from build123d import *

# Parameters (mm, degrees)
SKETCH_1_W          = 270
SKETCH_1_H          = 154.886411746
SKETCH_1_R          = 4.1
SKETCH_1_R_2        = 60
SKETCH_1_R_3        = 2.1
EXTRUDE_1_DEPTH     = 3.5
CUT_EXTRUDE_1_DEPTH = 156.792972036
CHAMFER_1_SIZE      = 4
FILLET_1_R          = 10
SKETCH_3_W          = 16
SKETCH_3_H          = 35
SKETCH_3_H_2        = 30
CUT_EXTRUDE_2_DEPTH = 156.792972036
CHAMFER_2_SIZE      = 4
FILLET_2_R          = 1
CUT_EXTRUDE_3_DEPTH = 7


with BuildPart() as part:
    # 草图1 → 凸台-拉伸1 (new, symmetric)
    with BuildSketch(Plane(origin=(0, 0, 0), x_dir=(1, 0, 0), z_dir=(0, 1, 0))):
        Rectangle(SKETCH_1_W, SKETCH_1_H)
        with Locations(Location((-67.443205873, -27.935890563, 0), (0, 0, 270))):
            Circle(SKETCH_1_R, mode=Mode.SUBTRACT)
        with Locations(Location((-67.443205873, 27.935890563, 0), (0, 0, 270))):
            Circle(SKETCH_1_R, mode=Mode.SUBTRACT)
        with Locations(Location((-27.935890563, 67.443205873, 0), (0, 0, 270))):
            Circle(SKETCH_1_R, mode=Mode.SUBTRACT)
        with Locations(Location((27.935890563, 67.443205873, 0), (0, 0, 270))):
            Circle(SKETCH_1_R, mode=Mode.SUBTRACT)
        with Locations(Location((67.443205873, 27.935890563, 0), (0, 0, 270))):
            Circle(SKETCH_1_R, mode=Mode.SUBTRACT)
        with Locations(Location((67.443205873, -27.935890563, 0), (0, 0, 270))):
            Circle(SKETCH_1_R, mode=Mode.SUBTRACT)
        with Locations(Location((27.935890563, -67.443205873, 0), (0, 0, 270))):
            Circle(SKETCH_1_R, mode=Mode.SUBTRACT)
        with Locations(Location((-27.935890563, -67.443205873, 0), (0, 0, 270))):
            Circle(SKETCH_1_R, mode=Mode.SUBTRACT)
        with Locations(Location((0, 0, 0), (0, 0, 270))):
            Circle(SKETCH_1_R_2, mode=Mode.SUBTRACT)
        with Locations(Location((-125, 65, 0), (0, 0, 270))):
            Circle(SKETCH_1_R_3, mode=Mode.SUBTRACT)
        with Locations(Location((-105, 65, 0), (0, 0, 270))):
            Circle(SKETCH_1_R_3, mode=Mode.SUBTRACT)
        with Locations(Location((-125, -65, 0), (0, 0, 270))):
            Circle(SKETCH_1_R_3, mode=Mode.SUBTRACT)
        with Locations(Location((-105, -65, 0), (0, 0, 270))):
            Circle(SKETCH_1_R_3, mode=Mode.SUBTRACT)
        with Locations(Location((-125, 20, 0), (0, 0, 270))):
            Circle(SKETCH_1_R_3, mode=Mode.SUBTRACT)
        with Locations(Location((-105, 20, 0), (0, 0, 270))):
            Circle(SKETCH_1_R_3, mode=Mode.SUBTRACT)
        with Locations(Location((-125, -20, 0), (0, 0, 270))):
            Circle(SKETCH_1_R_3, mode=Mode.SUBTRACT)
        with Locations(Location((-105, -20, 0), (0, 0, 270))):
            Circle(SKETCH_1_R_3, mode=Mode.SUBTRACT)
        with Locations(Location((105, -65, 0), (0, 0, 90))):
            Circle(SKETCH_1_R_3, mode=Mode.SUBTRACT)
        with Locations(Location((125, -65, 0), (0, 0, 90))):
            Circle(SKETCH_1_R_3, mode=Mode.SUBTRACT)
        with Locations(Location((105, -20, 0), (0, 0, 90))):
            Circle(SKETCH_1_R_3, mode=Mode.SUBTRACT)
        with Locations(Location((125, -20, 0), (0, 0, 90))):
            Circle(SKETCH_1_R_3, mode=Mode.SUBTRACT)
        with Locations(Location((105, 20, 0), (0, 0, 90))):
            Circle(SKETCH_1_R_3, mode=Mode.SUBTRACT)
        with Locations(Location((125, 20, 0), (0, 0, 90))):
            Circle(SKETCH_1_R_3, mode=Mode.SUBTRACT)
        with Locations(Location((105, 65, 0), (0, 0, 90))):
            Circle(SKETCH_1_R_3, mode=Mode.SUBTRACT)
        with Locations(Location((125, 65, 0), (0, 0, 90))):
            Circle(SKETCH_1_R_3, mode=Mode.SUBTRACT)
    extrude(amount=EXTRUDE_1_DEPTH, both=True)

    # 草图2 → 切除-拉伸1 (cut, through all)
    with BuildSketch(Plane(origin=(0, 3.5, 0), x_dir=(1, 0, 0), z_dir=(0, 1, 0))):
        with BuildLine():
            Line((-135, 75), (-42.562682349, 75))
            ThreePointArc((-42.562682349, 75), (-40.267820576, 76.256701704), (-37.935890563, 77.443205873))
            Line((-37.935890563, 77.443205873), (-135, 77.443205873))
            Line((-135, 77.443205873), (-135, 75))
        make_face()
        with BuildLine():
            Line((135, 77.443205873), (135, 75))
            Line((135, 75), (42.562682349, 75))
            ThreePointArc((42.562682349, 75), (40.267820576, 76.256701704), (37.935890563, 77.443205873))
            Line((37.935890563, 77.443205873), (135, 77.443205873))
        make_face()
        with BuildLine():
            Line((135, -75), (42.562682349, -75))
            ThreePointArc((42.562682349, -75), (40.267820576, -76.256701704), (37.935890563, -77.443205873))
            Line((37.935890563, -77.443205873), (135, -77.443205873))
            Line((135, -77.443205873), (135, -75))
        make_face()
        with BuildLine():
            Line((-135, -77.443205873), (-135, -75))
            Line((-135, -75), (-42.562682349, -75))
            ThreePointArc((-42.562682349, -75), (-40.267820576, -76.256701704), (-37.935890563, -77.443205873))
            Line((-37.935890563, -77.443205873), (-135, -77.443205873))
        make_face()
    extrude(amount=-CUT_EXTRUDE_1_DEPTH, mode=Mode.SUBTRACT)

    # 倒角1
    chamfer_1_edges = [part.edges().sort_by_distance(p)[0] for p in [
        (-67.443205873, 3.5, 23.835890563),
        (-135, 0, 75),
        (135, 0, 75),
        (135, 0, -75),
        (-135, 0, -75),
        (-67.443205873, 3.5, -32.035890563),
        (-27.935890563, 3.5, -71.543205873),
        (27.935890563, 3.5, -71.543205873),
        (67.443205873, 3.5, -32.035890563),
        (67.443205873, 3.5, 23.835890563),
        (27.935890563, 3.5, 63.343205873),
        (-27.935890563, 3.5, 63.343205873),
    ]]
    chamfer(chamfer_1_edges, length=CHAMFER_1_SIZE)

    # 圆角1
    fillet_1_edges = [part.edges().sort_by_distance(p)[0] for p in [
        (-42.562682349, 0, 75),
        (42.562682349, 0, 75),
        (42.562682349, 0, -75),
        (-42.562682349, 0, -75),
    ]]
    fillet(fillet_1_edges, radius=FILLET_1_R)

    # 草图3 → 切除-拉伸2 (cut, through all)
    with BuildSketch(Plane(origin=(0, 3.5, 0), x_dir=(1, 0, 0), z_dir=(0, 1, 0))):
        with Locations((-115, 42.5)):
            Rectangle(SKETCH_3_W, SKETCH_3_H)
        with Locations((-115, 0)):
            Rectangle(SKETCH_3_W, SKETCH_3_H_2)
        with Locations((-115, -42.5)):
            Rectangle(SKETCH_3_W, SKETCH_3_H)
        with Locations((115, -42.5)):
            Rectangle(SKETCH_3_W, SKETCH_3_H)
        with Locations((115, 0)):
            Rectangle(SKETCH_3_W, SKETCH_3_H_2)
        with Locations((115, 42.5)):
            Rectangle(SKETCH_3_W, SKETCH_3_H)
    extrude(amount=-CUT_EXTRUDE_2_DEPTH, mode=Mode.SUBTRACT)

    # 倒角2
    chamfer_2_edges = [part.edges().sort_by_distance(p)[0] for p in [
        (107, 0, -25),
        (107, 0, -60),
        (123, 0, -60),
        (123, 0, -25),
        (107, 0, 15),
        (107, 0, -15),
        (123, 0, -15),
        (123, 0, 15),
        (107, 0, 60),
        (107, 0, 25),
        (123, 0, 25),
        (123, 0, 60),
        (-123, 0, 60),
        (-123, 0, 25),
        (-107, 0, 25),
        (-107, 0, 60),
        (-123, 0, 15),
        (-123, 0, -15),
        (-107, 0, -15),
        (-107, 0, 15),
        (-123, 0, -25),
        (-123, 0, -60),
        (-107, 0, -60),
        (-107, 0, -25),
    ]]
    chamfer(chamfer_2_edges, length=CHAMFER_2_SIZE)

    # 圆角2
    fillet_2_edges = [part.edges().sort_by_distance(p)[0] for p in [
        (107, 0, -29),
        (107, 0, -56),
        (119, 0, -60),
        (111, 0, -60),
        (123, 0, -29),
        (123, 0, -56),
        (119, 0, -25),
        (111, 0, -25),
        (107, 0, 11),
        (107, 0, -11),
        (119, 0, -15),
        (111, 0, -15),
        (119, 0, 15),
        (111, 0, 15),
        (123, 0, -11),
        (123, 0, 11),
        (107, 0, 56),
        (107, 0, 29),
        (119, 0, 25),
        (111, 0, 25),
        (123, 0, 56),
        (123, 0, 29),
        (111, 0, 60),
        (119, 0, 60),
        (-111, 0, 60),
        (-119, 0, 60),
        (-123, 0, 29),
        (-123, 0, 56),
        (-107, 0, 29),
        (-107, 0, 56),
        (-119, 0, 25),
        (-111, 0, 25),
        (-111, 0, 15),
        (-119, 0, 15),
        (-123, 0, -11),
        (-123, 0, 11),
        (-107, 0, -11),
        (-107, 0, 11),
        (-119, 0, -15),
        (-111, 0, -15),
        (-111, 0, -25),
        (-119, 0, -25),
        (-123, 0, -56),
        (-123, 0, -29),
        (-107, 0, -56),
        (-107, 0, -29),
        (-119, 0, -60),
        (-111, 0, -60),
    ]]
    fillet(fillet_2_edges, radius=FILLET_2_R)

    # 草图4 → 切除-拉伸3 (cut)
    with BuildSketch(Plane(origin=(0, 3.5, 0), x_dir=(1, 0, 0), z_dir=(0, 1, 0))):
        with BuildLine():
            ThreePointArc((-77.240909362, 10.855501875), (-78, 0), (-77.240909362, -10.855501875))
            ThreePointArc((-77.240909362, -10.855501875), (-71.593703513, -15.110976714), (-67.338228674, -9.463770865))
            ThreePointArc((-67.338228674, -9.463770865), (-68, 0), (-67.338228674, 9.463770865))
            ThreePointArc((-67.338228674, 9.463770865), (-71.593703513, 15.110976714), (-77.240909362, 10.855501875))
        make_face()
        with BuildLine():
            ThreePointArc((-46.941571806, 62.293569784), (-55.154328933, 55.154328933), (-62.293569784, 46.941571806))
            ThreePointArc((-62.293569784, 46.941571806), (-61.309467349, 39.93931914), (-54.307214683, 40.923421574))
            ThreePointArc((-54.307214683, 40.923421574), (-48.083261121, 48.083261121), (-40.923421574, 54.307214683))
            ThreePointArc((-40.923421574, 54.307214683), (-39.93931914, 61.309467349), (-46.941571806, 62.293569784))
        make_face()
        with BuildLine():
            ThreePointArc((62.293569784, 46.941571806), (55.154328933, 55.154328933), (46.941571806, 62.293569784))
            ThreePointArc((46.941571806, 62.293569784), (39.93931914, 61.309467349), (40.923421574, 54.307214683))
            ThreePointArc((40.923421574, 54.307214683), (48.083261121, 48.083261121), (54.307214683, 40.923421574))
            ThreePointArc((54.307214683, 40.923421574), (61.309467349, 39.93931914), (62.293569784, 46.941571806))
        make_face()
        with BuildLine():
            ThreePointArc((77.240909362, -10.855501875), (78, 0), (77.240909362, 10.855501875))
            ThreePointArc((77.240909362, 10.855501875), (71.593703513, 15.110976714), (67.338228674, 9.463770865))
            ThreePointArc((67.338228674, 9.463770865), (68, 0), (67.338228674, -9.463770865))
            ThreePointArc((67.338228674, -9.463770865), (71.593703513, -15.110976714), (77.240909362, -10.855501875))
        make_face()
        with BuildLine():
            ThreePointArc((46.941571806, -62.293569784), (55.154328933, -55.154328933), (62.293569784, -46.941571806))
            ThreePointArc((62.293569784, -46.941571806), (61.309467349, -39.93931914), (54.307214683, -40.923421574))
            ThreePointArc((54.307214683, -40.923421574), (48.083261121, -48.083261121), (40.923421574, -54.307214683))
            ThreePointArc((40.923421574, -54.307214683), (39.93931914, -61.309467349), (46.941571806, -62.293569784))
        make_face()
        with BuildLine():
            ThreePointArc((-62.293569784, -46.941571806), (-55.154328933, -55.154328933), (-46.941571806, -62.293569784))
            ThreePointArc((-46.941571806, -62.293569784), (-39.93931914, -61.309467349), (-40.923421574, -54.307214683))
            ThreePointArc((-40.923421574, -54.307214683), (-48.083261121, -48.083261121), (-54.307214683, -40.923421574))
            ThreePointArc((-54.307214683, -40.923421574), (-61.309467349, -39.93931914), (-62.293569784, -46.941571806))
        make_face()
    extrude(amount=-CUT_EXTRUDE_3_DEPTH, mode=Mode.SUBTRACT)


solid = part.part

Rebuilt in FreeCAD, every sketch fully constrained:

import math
import FreeCAD as App
import Part
import Sketcher
from FreeCAD import Vector
Q = App.Units.Quantity


def edges_at(feature, points):
    """Names of the edges that pass closest to the given points."""
    edges = feature.Shape.Edges
    near = lambda p: min(range(len(edges)), key=lambda i: edges[i].distToShape(Part.Vertex(*p))[0])
    return sorted({f"Edge{near(p) + 1}" for p in points})


def add_polygon(sketch, points):
    """Adds a closed chain of lines whose ends are joined by coincident constraints."""
    first, n = sketch.GeometryCount, len(points)
    for a, b in zip(points, points[1:] + points[:1]):
        sketch.addGeometry(Part.LineSegment(App.Vector(*a, 0), App.Vector(*b, 0)), False)
    for i in range(n):
        sketch.addConstraint(Sketcher.Constraint("Coincident", first + i, 2, first + (i + 1) % n, 1))

doc = App.newDocument("Part")
body = doc.addObject("PartDesign::Body", "Body")

# Sketch on XZ plane
sketch1 = doc.addObject("Sketcher::SketchObject", "Sketch")
body.addObject(sketch1)
sketch1.AttachmentSupport = (doc.XZ_Plane, [""])
sketch1.MapMode = "FlatFace"
add_polygon(sketch1, [(-135, -77.443206), (-135, 77.443206), (135, 77.443206), (135, -77.443206)])  # lines 0-3
sketch1.addGeometry(Part.Circle(Vector(-125, 65, 0), Vector(0, 0, 1), 2.1), False)  # 4
sketch1.addGeometry(Part.Circle(Vector(-105, 65, 0), Vector(0, 0, 1), 2.1), False)  # 5
sketch1.addGeometry(Part.Circle(Vector(-27.935891, 67.443206, 0), Vector(0, 0, 1), 4.1), False)  # 6
sketch1.addGeometry(Part.Circle(Vector(-125, 20, 0), Vector(0, 0, 1), 2.1), False)  # 7
sketch1.addGeometry(Part.Circle(Vector(-105, 20, 0), Vector(0, 0, 1), 2.1), False)  # 8
sketch1.addGeometry(Part.Circle(Vector(-67.443206, 27.935891, 0), Vector(0, 0, 1), 4.1), False)  # 9
sketch1.addGeometry(Part.Circle(Vector(27.935891, 67.443206, 0), Vector(0, 0, 1), 4.1), False)  # 10
sketch1.addGeometry(Part.Circle(Vector(105, 65, 0), Vector(0, 0, 1), 2.1), False)  # 11
sketch1.addGeometry(Part.Circle(Vector(125, 65, 0), Vector(0, 0, 1), 2.1), False)  # 12
sketch1.addGeometry(Part.Circle(Vector(0, 0, 0), Vector(0, 0, 1), 60), False)  # 13
sketch1.addGeometry(Part.Circle(Vector(67.443206, 27.935891, 0), Vector(0, 0, 1), 4.1), False)  # 14
sketch1.addGeometry(Part.Circle(Vector(105, 20, 0), Vector(0, 0, 1), 2.1), False)  # 15
sketch1.addGeometry(Part.Circle(Vector(125, 20, 0), Vector(0, 0, 1), 2.1), False)  # 16
sketch1.addGeometry(Part.Circle(Vector(-125, -20, 0), Vector(0, 0, 1), 2.1), False)  # 17
sketch1.addGeometry(Part.Circle(Vector(-105, -20, 0), Vector(0, 0, 1), 2.1), False)  # 18
sketch1.addGeometry(Part.Circle(Vector(-67.443206, -27.935891, 0), Vector(0, 0, 1), 4.1), False)  # 19
sketch1.addGeometry(Part.Circle(Vector(-125, -65, 0), Vector(0, 0, 1), 2.1), False)  # 20
sketch1.addGeometry(Part.Circle(Vector(-105, -65, 0), Vector(0, 0, 1), 2.1), False)  # 21
sketch1.addGeometry(Part.Circle(Vector(-27.935891, -67.443206, 0), Vector(0, 0, 1), 4.1), False)  # 22
sketch1.addGeometry(Part.Circle(Vector(67.443206, -27.935891, 0), Vector(0, 0, 1), 4.1), False)  # 23
sketch1.addGeometry(Part.Circle(Vector(105, -20, 0), Vector(0, 0, 1), 2.1), False)  # 24
sketch1.addGeometry(Part.Circle(Vector(125, -20, 0), Vector(0, 0, 1), 2.1), False)  # 25
sketch1.addGeometry(Part.Circle(Vector(27.935891, -67.443206, 0), Vector(0, 0, 1), 4.1), False)  # 26
sketch1.addGeometry(Part.Circle(Vector(105, -65, 0), Vector(0, 0, 1), 2.1), False)  # 27
sketch1.addGeometry(Part.Circle(Vector(125, -65, 0), Vector(0, 0, 1), 2.1), False)  # 28
sketch1.addConstraint(Sketcher.Constraint("Vertical", 0))
sketch1.addConstraint(Sketcher.Constraint("Horizontal", 1))
sketch1.addConstraint(Sketcher.Constraint("Vertical", 2))
sketch1.addConstraint(Sketcher.Constraint("Horizontal", 3))
sketch1.addConstraint(Sketcher.Constraint("Coincident", 13, 3, -1, 1))
sketch1.addConstraint(Sketcher.Constraint("Equal", 4, 5))
sketch1.addConstraint(Sketcher.Constraint("Equal", 5, 7))
sketch1.addConstraint(Sketcher.Constraint("Equal", 7, 8))
sketch1.addConstraint(Sketcher.Constraint("Equal", 6, 9))
sketch1.addConstraint(Sketcher.Constraint("Equal", 9, 10))
sketch1.addConstraint(Sketcher.Constraint("Equal", 8, 11))
sketch1.addConstraint(Sketcher.Constraint("Equal", 11, 12))
sketch1.addConstraint(Sketcher.Constraint("Equal", 10, 14))
sketch1.addConstraint(Sketcher.Constraint("Equal", 12, 15))
sketch1.addConstraint(Sketcher.Constraint("Equal", 15, 16))
sketch1.addConstraint(Sketcher.Constraint("Equal", 16, 17))
sketch1.addConstraint(Sketcher.Constraint("Equal", 17, 18))
sketch1.addConstraint(Sketcher.Constraint("Equal", 14, 19))
sketch1.addConstraint(Sketcher.Constraint("Equal", 18, 20))
sketch1.addConstraint(Sketcher.Constraint("Equal", 20, 21))
sketch1.addConstraint(Sketcher.Constraint("Equal", 19, 22))
sketch1.addConstraint(Sketcher.Constraint("Equal", 22, 23))
sketch1.addConstraint(Sketcher.Constraint("Equal", 21, 24))
sketch1.addConstraint(Sketcher.Constraint("Equal", 24, 25))
sketch1.addConstraint(Sketcher.Constraint("Equal", 23, 26))
sketch1.addConstraint(Sketcher.Constraint("Equal", 25, 27))
sketch1.addConstraint(Sketcher.Constraint("Equal", 27, 28))
sketch1.addConstraint(Sketcher.Constraint("Symmetric", 16, 3, 17, 3, -1, 1))
sketch1.addConstraint(Sketcher.Constraint("Symmetric", 15, 3, 18, 3, -1, 1))
sketch1.addConstraint(Sketcher.Constraint("Symmetric", 14, 3, 19, 3, -1, 1))
sketch1.addConstraint(Sketcher.Constraint("Symmetric", 12, 3, 20, 3, -1, 1))
sketch1.addConstraint(Sketcher.Constraint("Symmetric", 11, 3, 21, 3, -1, 1))
sketch1.addConstraint(Sketcher.Constraint("Symmetric", 10, 3, 22, 3, -1, 1))
sketch1.addConstraint(Sketcher.Constraint("Symmetric", 9, 3, 23, 3, -1, 1))
sketch1.addConstraint(Sketcher.Constraint("Symmetric", 8, 3, 24, 3, -1, 1))
sketch1.addConstraint(Sketcher.Constraint("Symmetric", 7, 3, 25, 3, -1, 1))
sketch1.addConstraint(Sketcher.Constraint("Symmetric", 6, 3, 26, 3, -1, 1))
sketch1.addConstraint(Sketcher.Constraint("Symmetric", 5, 3, 27, 3, -1, 1))
sketch1.addConstraint(Sketcher.Constraint("Symmetric", 4, 3, 28, 3, -1, 1))
sketch1.addConstraint(Sketcher.Constraint("Symmetric", 0, 2, 2, 2, -1, 1))
sketch1.addConstraint(Sketcher.Constraint("Symmetric", 6, 3, 10, 3, -2))
sketch1.addConstraint(Sketcher.Constraint("Symmetric", 5, 3, 11, 3, -2))
sketch1.addConstraint(Sketcher.Constraint("Symmetric", 4, 3, 12, 3, -2))
sketch1.addConstraint(Sketcher.Constraint("Symmetric", 9, 3, 14, 3, -2))
sketch1.addConstraint(Sketcher.Constraint("Symmetric", 8, 3, 15, 3, -2))
sketch1.addConstraint(Sketcher.Constraint("Symmetric", 7, 3, 16, 3, -2))
sketch1.addConstraint(Sketcher.Constraint("Horizontal", 4, 3, 5, 3))
sketch1.addConstraint(Sketcher.Constraint("Horizontal", 7, 3, 8, 3))
sketch1.addConstraint(Sketcher.Constraint("Vertical", 4, 3, 7, 3))
sketch1.addConstraint(Sketcher.Constraint("Vertical", 5, 3, 8, 3))
sketch1.addConstraint(Sketcher.Constraint("Diameter", 13, Q("120 mm")))
sketch1.addConstraint(Sketcher.Constraint("Diameter", 4, Q("4.2 mm")))
sketch1.addConstraint(Sketcher.Constraint("Diameter", 6, Q("8.2 mm")))
sketch1.addConstraint(Sketcher.Constraint("DistanceX", 1, 1, 1, 2, Q("270 mm")))
sketch1.addConstraint(Sketcher.Constraint("DistanceX", 4, 3, -1, 1, Q("125 mm")))
sketch1.addConstraint(Sketcher.Constraint("DistanceY", -1, 1, 4, 3, Q("65 mm")))
sketch1.addConstraint(Sketcher.Constraint("DistanceX", 5, 3, -1, 1, Q("105 mm")))
sketch1.addConstraint(Sketcher.Constraint("DistanceY", -1, 1, 7, 3, Q("20 mm")))
sketch1.addConstraint(Sketcher.Constraint("DistanceY", 0, 1, 0, 2, Q("154.886412 mm")))
sketch1.addConstraint(Sketcher.Constraint("DistanceX", 6, 3, -1, 1, Q("27.935891 mm")))
sketch1.addConstraint(Sketcher.Constraint("DistanceY", -1, 1, 9, 3, Q("27.935891 mm")))
sketch1.addConstraint(Sketcher.Constraint("DistanceY", -1, 1, 6, 3, Q("67.443206 mm")))
sketch1.addConstraint(Sketcher.Constraint("DistanceX", 9, 3, -1, 1, Q("67.443206 mm")))
pad1 = doc.addObject("PartDesign::Pad", "Pad")
body.addObject(pad1)
pad1.Profile = sketch1
pad1.Length = 7
pad1.Midplane = True

# Sketch on XZ plane
sketch2 = doc.addObject("Sketcher::SketchObject", "Sketch001")
body.addObject(sketch2)
sketch2.AttachmentSupport = (doc.XZ_Plane, [""])
sketch2.MapMode = "FlatFace"
sketch2.AttachmentOffset = App.Placement(Vector(0, 0, -3.5), App.Rotation())
sketch2.addGeometry(Part.LineSegment(Vector(-135, -75, 0), Vector(-42.562682, -75, 0)), False)
sketch2.addGeometry(Part.ArcOfCircle(Part.Circle(Vector(0, 0, 0), Vector(0, 0, 1), 86.235619), math.radians(-119.575016), math.radians(-116.098124)), False)
sketch2.addGeometry(Part.LineSegment(Vector(-37.935891, -77.443206, 0), Vector(-135, -77.443206, 0)), False)
sketch2.addGeometry(Part.LineSegment(Vector(-135, -77.443206, 0), Vector(-135, -75, 0)), False)
sketch2.addGeometry(Part.LineSegment(Vector(135, -75, 0), Vector(135, -77.443206, 0)), False)
sketch2.addGeometry(Part.LineSegment(Vector(135, -77.443206, 0), Vector(37.935891, -77.443206, 0)), False)
sketch2.addGeometry(Part.ArcOfCircle(Part.Circle(Vector(0, 0, 0), Vector(0, 0, 1), 86.235619), math.radians(-63.901876), math.radians(-60.424984)), False)
sketch2.addGeometry(Part.LineSegment(Vector(42.562682, -75, 0), Vector(135, -75, 0)), False)
sketch2.addGeometry(Part.LineSegment(Vector(135, 75, 0), Vector(42.562682, 75, 0)), False)
sketch2.addGeometry(Part.ArcOfCircle(Part.Circle(Vector(0, 0, 0), Vector(0, 0, 1), 86.235619), math.radians(60.424984), math.radians(63.901876)), False)
sketch2.addGeometry(Part.LineSegment(Vector(37.935891, 77.443206, 0), Vector(135, 77.443206, 0)), False)
sketch2.addGeometry(Part.LineSegment(Vector(135, 77.443206, 0), Vector(135, 75, 0)), False)
sketch2.addGeometry(Part.LineSegment(Vector(-135, 75, 0), Vector(-135, 77.443206, 0)), False)
sketch2.addGeometry(Part.LineSegment(Vector(-135, 77.443206, 0), Vector(-37.935891, 77.443206, 0)), False)
sketch2.addGeometry(Part.ArcOfCircle(Part.Circle(Vector(0, 0, 0), Vector(0, 0, 1), 86.235619), math.radians(116.098124), math.radians(119.575016)), False)
sketch2.addGeometry(Part.LineSegment(Vector(-42.562682, 75, 0), Vector(-135, 75, 0)), False)
sketch2.addConstraint(Sketcher.Constraint("Coincident", 0, 2, 1, 1))
sketch2.addConstraint(Sketcher.Constraint("Coincident", 1, 2, 2, 1))
sketch2.addConstraint(Sketcher.Constraint("Coincident", 2, 2, 3, 1))
sketch2.addConstraint(Sketcher.Constraint("Coincident", 3, 2, 0, 1))
sketch2.addConstraint(Sketcher.Constraint("Coincident", 4, 2, 5, 1))
sketch2.addConstraint(Sketcher.Constraint("Coincident", 5, 2, 6, 1))
sketch2.addConstraint(Sketcher.Constraint("Coincident", 6, 2, 7, 1))
sketch2.addConstraint(Sketcher.Constraint("Coincident", 7, 2, 4, 1))
sketch2.addConstraint(Sketcher.Constraint("Coincident", 8, 2, 9, 1))
sketch2.addConstraint(Sketcher.Constraint("Coincident", 9, 2, 10, 1))
sketch2.addConstraint(Sketcher.Constraint("Coincident", 10, 2, 11, 1))
sketch2.addConstraint(Sketcher.Constraint("Coincident", 11, 2, 8, 1))
sketch2.addConstraint(Sketcher.Constraint("Coincident", 12, 2, 13, 1))
sketch2.addConstraint(Sketcher.Constraint("Coincident", 13, 2, 14, 1))
sketch2.addConstraint(Sketcher.Constraint("Coincident", 14, 2, 15, 1))
sketch2.addConstraint(Sketcher.Constraint("Coincident", 15, 2, 12, 1))
sketch2.addConstraint(Sketcher.Constraint("Horizontal", 0))
sketch2.addConstraint(Sketcher.Constraint("Horizontal", 2))
sketch2.addConstraint(Sketcher.Constraint("Vertical", 3))
sketch2.addConstraint(Sketcher.Constraint("Vertical", 4))
sketch2.addConstraint(Sketcher.Constraint("Horizontal", 5))
sketch2.addConstraint(Sketcher.Constraint("Horizontal", 7))
sketch2.addConstraint(Sketcher.Constraint("Horizontal", 8))
sketch2.addConstraint(Sketcher.Constraint("Horizontal", 10))
sketch2.addConstraint(Sketcher.Constraint("Vertical", 11))
sketch2.addConstraint(Sketcher.Constraint("Vertical", 12))
sketch2.addConstraint(Sketcher.Constraint("Horizontal", 13))
sketch2.addConstraint(Sketcher.Constraint("Horizontal", 15))
sketch2.addConstraint(Sketcher.Constraint("Coincident", 1, 3, -1, 1))
sketch2.addConstraint(Sketcher.Constraint("Coincident", 6, 3, -1, 1))
sketch2.addConstraint(Sketcher.Constraint("Coincident", 9, 3, -1, 1))
sketch2.addConstraint(Sketcher.Constraint("Coincident", 14, 3, -1, 1))
sketch2.addConstraint(Sketcher.Constraint("Equal", 1, 6))
sketch2.addConstraint(Sketcher.Constraint("Equal", 6, 9))
sketch2.addConstraint(Sketcher.Constraint("Equal", 9, 14))
sketch2.addConstraint(Sketcher.Constraint("Symmetric", 2, 2, 10, 2, -1, 1))
sketch2.addConstraint(Sketcher.Constraint("Symmetric", 4, 2, 12, 2, -1, 1))
sketch2.addConstraint(Sketcher.Constraint("Symmetric", 2, 2, 4, 2, -2))
sketch2.addConstraint(Sketcher.Constraint("Horizontal", 3, 2, 6, 2))
sketch2.addConstraint(Sketcher.Constraint("Horizontal", 11, 2, 14, 2))
sketch2.addConstraint(Sketcher.Constraint("Vertical", 6, 2, 8, 2))
sketch2.addConstraint(Sketcher.Constraint("DistanceY", 0, 2, -1, 1, Q("75 mm")))
sketch2.addConstraint(Sketcher.Constraint("DistanceX", 2, 2, -1, 1, Q("135 mm")))
sketch2.addConstraint(Sketcher.Constraint("Radius", 1, Q("86.235619 mm")))
sketch2.addConstraint(Sketcher.Constraint("DistanceX", 2, 2, 2, 1, Q("97.064109 mm")))
pocket1 = doc.addObject("PartDesign::Pocket", "Pocket")
body.addObject(pocket1)
pocket1.Profile = sketch2
pocket1.Type = "ThroughAll"
pocket1.Reversed = True
doc.recompute()

chamfer = doc.addObject("PartDesign::Chamfer", "Chamfer")
body.addObject(chamfer)
chamfer.Base = (pocket1, edges_at(pocket1, [
    (-67.443, 3.5, 23.836),
    (-135, 0, 75),
    (135, 0, 75),
    (135, 0, -75),
    (-135, 0, -75),
    (-67.443, 3.5, -32.036),
    (-27.936, 3.5, -71.543),
    (27.936, 3.5, -71.543),
    (67.443, 3.5, -32.036),
    (67.443, 3.5, 23.836),
    (27.936, 3.5, 63.343),
    (-27.936, 3.5, 63.343),
]))
chamfer.Size = 4
doc.recompute()

fillet = doc.addObject("PartDesign::Fillet", "Fillet")
body.addObject(fillet)
fillet.Base = (chamfer, edges_at(chamfer, [
    (-42.563, 0, 75),
    (42.563, 0, 75),
    (42.563, 0, -75),
    (-42.563, 0, -75),
]))
fillet.Radius = 10

# Sketch on XZ plane
sketch3 = doc.addObject("Sketcher::SketchObject", "Sketch002")
body.addObject(sketch3)
sketch3.AttachmentSupport = (doc.XZ_Plane, [""])
sketch3.MapMode = "FlatFace"
sketch3.AttachmentOffset = App.Placement(Vector(0, 0, -3.5), App.Rotation())
add_polygon(sketch3, [(-123, -60), (-123, -25), (-107, -25), (-107, -60)])  # lines 0-3
add_polygon(sketch3, [(-123, -15), (-123, 15), (-107, 15), (-107, -15)])  # lines 4-7
add_polygon(sketch3, [(-123, 25), (-123, 60), (-107, 60), (-107, 25)])  # lines 8-11
add_polygon(sketch3, [(107, 25), (107, 60), (123, 60), (123, 25)])  # lines 12-15
add_polygon(sketch3, [(107, -15), (107, 15), (123, 15), (123, -15)])  # lines 16-19
add_polygon(sketch3, [(107, -60), (107, -25), (123, -25), (123, -60)])  # lines 20-23
sketch3.addConstraint(Sketcher.Constraint("Vertical", 0))
sketch3.addConstraint(Sketcher.Constraint("Horizontal", 1))
sketch3.addConstraint(Sketcher.Constraint("Vertical", 2))
sketch3.addConstraint(Sketcher.Constraint("Horizontal", 3))
sketch3.addConstraint(Sketcher.Constraint("Vertical", 4))
sketch3.addConstraint(Sketcher.Constraint("Horizontal", 5))
sketch3.addConstraint(Sketcher.Constraint("Vertical", 6))
sketch3.addConstraint(Sketcher.Constraint("Horizontal", 7))
sketch3.addConstraint(Sketcher.Constraint("Vertical", 8))
sketch3.addConstraint(Sketcher.Constraint("Horizontal", 9))
sketch3.addConstraint(Sketcher.Constraint("Vertical", 10))
sketch3.addConstraint(Sketcher.Constraint("Horizontal", 11))
sketch3.addConstraint(Sketcher.Constraint("Vertical", 12))
sketch3.addConstraint(Sketcher.Constraint("Horizontal", 13))
sketch3.addConstraint(Sketcher.Constraint("Vertical", 14))
sketch3.addConstraint(Sketcher.Constraint("Horizontal", 15))
sketch3.addConstraint(Sketcher.Constraint("Vertical", 16))
sketch3.addConstraint(Sketcher.Constraint("Horizontal", 17))
sketch3.addConstraint(Sketcher.Constraint("Vertical", 18))
sketch3.addConstraint(Sketcher.Constraint("Horizontal", 19))
sketch3.addConstraint(Sketcher.Constraint("Vertical", 20))
sketch3.addConstraint(Sketcher.Constraint("Horizontal", 21))
sketch3.addConstraint(Sketcher.Constraint("Vertical", 22))
sketch3.addConstraint(Sketcher.Constraint("Horizontal", 23))
sketch3.addConstraint(Sketcher.Constraint("Symmetric", 2, 2, 12, 2, -1, 1))
sketch3.addConstraint(Sketcher.Constraint("Symmetric", 0, 2, 14, 2, -1, 1))
sketch3.addConstraint(Sketcher.Constraint("Symmetric", 6, 2, 16, 2, -1, 1))
sketch3.addConstraint(Sketcher.Constraint("Symmetric", 4, 2, 18, 2, -1, 1))
sketch3.addConstraint(Sketcher.Constraint("Symmetric", 10, 2, 20, 2, -1, 1))
sketch3.addConstraint(Sketcher.Constraint("Symmetric", 8, 2, 22, 2, -1, 1))
sketch3.addConstraint(Sketcher.Constraint("Symmetric", 9, 2, 12, 2, -2))
sketch3.addConstraint(Sketcher.Constraint("Symmetric", 11, 2, 14, 2, -2))
sketch3.addConstraint(Sketcher.Constraint("Horizontal", 5, 2, 16, 2))
sketch3.addConstraint(Sketcher.Constraint("Vertical", 3, 2, 4, 2))
sketch3.addConstraint(Sketcher.Constraint("Vertical", 2, 2, 5, 2))
sketch3.addConstraint(Sketcher.Constraint("DistanceX", 1, 1, 1, 2, Q("16 mm")))
sketch3.addConstraint(Sketcher.Constraint("DistanceY", 0, 1, 0, 2, Q("35 mm")))
sketch3.addConstraint(Sketcher.Constraint("DistanceY", 4, 1, 4, 2, Q("30 mm")))
sketch3.addConstraint(Sketcher.Constraint("DistanceX", 0, 2, -1, 1, Q("123 mm")))
sketch3.addConstraint(Sketcher.Constraint("DistanceY", 0, 2, -1, 1, Q("25 mm")))
pocket2 = doc.addObject("PartDesign::Pocket", "Pocket001")
body.addObject(pocket2)
pocket2.Profile = sketch3
pocket2.Type = "ThroughAll"
pocket2.Reversed = True
doc.recompute()

chamfer2 = doc.addObject("PartDesign::Chamfer", "Chamfer001")
body.addObject(chamfer2)
chamfer2.Base = (pocket2, edges_at(pocket2, [
    (107, 0, -25),
    (107, 0, -60),
    (123, 0, -60),
    (123, 0, -25),
    (107, 0, 15),
    (107, 0, -15),
    (123, 0, -15),
    (123, 0, 15),
    (107, 0, 60),
    (107, 0, 25),
    (123, 0, 25),
    (123, 0, 60),
    (-123, 0, 60),
    (-123, 0, 25),
    (-107, 0, 25),
    (-107, 0, 60),
    (-123, 0, 15),
    (-123, 0, -15),
    (-107, 0, -15),
    (-107, 0, 15),
    (-123, 0, -25),
    (-123, 0, -60),
    (-107, 0, -60),
    (-107, 0, -25),
]))
chamfer2.Size = 4
doc.recompute()

fillet2 = doc.addObject("PartDesign::Fillet", "Fillet001")
body.addObject(fillet2)
fillet2.Base = (chamfer2, edges_at(chamfer2, [
    (107, 0, -29),
    (107, 0, -56),
    (119, 0, -60),
    (111, 0, -60),
    (123, 0, -29),
    (123, 0, -56),
    (119, 0, -25),
    (111, 0, -25),
    (107, 0, 11),
    (107, 0, -11),
    (119, 0, -15),
    (111, 0, -15),
    (119, 0, 15),
    (111, 0, 15),
    (123, 0, -11),
    (123, 0, 11),
    (107, 0, 56),
    (107, 0, 29),
    (119, 0, 25),
    (111, 0, 25),
    (123, 0, 56),
    (123, 0, 29),
    (111, 0, 60),
    (119, 0, 60),
    (-111, 0, 60),
    (-119, 0, 60),
    (-123, 0, 29),
    (-123, 0, 56),
    (-107, 0, 29),
    (-107, 0, 56),
    (-119, 0, 25),
    (-111, 0, 25),
    (-111, 0, 15),
    (-119, 0, 15),
    (-123, 0, -11),
    (-123, 0, 11),
    (-107, 0, -11),
    (-107, 0, 11),
    (-119, 0, -15),
    (-111, 0, -15),
    (-111, 0, -25),
    (-119, 0, -25),
    (-123, 0, -56),
    (-123, 0, -29),
    (-107, 0, -56),
    (-107, 0, -29),
    (-119, 0, -60),
    (-111, 0, -60),
]))
fillet2.Radius = 1

# Sketch on XZ plane
sketch4 = doc.addObject("Sketcher::SketchObject", "Sketch003")
body.addObject(sketch4)
sketch4.AttachmentSupport = (doc.XZ_Plane, [""])
sketch4.MapMode = "FlatFace"
sketch4.AttachmentOffset = App.Placement(Vector(0, 0, -3.5), App.Rotation())
sketch4.addGeometry(Part.ArcOfCircle(Part.Circle(Vector(0, 0, 0), Vector(0, 0, 1), 78), math.radians(172), math.radians(188)), False)
sketch4.addGeometry(Part.ArcOfCircle(Part.Circle(Vector(-72.289569, 10.159636, 0), Vector(0, 0, 1), 5), math.radians(-8), math.radians(172)), False)
sketch4.addGeometry(Part.ArcOfCircle(Part.Circle(Vector(0, 0, 0), Vector(0, 0, 1), 68), math.radians(172), math.radians(188)), False)
sketch4.addGeometry(Part.ArcOfCircle(Part.Circle(Vector(-72.289569, -10.159636, 0), Vector(0, 0, 1), 5), math.radians(-172), math.radians(8)), False)
sketch4.addGeometry(Part.ArcOfCircle(Part.Circle(Vector(0, 0, 0), Vector(0, 0, 1), 78), math.radians(-143), math.radians(-127)), False)
sketch4.addGeometry(Part.ArcOfCircle(Part.Circle(Vector(-58.300392, -43.932497, 0), Vector(0, 0, 1), 5), math.radians(37), math.radians(217)), False)
sketch4.addGeometry(Part.ArcOfCircle(Part.Circle(Vector(0, 0, 0), Vector(0, 0, 1), 68), math.radians(-143), math.radians(-127)), False)
sketch4.addGeometry(Part.ArcOfCircle(Part.Circle(Vector(-43.932497, -58.300392, 0), Vector(0, 0, 1), 5), math.radians(-127), math.radians(53)), False)
sketch4.addGeometry(Part.ArcOfCircle(Part.Circle(Vector(0, 0, 0), Vector(0, 0, 1), 78), math.radians(-53), math.radians(-37)), False)
sketch4.addGeometry(Part.ArcOfCircle(Part.Circle(Vector(43.932497, -58.300392, 0), Vector(0, 0, 1), 5), math.radians(127), math.radians(307)), False)
sketch4.addGeometry(Part.ArcOfCircle(Part.Circle(Vector(0, 0, 0), Vector(0, 0, 1), 68), math.radians(-53), math.radians(-37)), False)
sketch4.addGeometry(Part.ArcOfCircle(Part.Circle(Vector(58.300392, -43.932497, 0), Vector(0, 0, 1), 5), math.radians(-37), math.radians(143)), False)
sketch4.addGeometry(Part.ArcOfCircle(Part.Circle(Vector(0, 0, 0), Vector(0, 0, 1), 78), math.radians(-8), math.radians(8)), False)
sketch4.addGeometry(Part.ArcOfCircle(Part.Circle(Vector(72.289569, -10.159636, 0), Vector(0, 0, 1), 5), math.radians(172), math.radians(352)), False)
sketch4.addGeometry(Part.ArcOfCircle(Part.Circle(Vector(0, 0, 0), Vector(0, 0, 1), 68), math.radians(-8), math.radians(8)), False)
sketch4.addGeometry(Part.ArcOfCircle(Part.Circle(Vector(72.289569, 10.159636, 0), Vector(0, 0, 1), 5), math.radians(8), math.radians(188)), False)
sketch4.addGeometry(Part.ArcOfCircle(Part.Circle(Vector(0, 0, 0), Vector(0, 0, 1), 78), math.radians(37), math.radians(53)), False)
sketch4.addGeometry(Part.ArcOfCircle(Part.Circle(Vector(58.300392, 43.932497, 0), Vector(0, 0, 1), 5), math.radians(-143), math.radians(37)), False)
sketch4.addGeometry(Part.ArcOfCircle(Part.Circle(Vector(0, 0, 0), Vector(0, 0, 1), 68), math.radians(37), math.radians(53)), False)
sketch4.addGeometry(Part.ArcOfCircle(Part.Circle(Vector(43.932497, 58.300392, 0), Vector(0, 0, 1), 5), math.radians(53), math.radians(233)), False)
sketch4.addGeometry(Part.ArcOfCircle(Part.Circle(Vector(0, 0, 0), Vector(0, 0, 1), 78), math.radians(127), math.radians(143)), False)
sketch4.addGeometry(Part.ArcOfCircle(Part.Circle(Vector(-43.932497, 58.300392, 0), Vector(0, 0, 1), 5), math.radians(-53), math.radians(127)), False)
sketch4.addGeometry(Part.ArcOfCircle(Part.Circle(Vector(0, 0, 0), Vector(0, 0, 1), 68), math.radians(127), math.radians(143)), False)
sketch4.addGeometry(Part.ArcOfCircle(Part.Circle(Vector(-58.300392, 43.932497, 0), Vector(0, 0, 1), 5), math.radians(143), math.radians(323)), False)
sketch4.addConstraint(Sketcher.Constraint("Tangent", 0, 1, 1, 2))
sketch4.addConstraint(Sketcher.Constraint("Tangent", 1, 1, 2, 1))
sketch4.addConstraint(Sketcher.Constraint("Tangent", 2, 2, 3, 2))
sketch4.addConstraint(Sketcher.Constraint("Tangent", 3, 1, 0, 2))
sketch4.addConstraint(Sketcher.Constraint("Tangent", 4, 1, 5, 2))
sketch4.addConstraint(Sketcher.Constraint("Tangent", 5, 1, 6, 1))
sketch4.addConstraint(Sketcher.Constraint("Tangent", 6, 2, 7, 2))
sketch4.addConstraint(Sketcher.Constraint("Tangent", 7, 1, 4, 2))
sketch4.addConstraint(Sketcher.Constraint("Tangent", 8, 1, 9, 2))
sketch4.addConstraint(Sketcher.Constraint("Tangent", 9, 1, 10, 1))
sketch4.addConstraint(Sketcher.Constraint("Tangent", 10, 2, 11, 2))
sketch4.addConstraint(Sketcher.Constraint("Tangent", 11, 1, 8, 2))
sketch4.addConstraint(Sketcher.Constraint("Tangent", 12, 1, 13, 2))
sketch4.addConstraint(Sketcher.Constraint("Tangent", 13, 1, 14, 1))
sketch4.addConstraint(Sketcher.Constraint("Tangent", 14, 2, 15, 2))
sketch4.addConstraint(Sketcher.Constraint("Tangent", 15, 1, 12, 2))
sketch4.addConstraint(Sketcher.Constraint("Tangent", 16, 1, 17, 2))
sketch4.addConstraint(Sketcher.Constraint("Tangent", 17, 1, 18, 1))
sketch4.addConstraint(Sketcher.Constraint("Tangent", 18, 2, 19, 2))
sketch4.addConstraint(Sketcher.Constraint("Tangent", 19, 1, 16, 2))
sketch4.addConstraint(Sketcher.Constraint("Tangent", 20, 1, 21, 2))
sketch4.addConstraint(Sketcher.Constraint("Tangent", 21, 1, 22, 1))
sketch4.addConstraint(Sketcher.Constraint("Tangent", 22, 2, 23, 2))
sketch4.addConstraint(Sketcher.Constraint("Tangent", 23, 1, 20, 2))
sketch4.addConstraint(Sketcher.Constraint("Coincident", 0, 3, -1, 1))
sketch4.addConstraint(Sketcher.Constraint("Coincident", 2, 3, -1, 1))
sketch4.addConstraint(Sketcher.Constraint("Coincident", 4, 3, -1, 1))
sketch4.addConstraint(Sketcher.Constraint("Coincident", 6, 3, -1, 1))
sketch4.addConstraint(Sketcher.Constraint("Coincident", 8, 3, -1, 1))
sketch4.addConstraint(Sketcher.Constraint("Coincident", 10, 3, -1, 1))
sketch4.addConstraint(Sketcher.Constraint("Coincident", 12, 3, -1, 1))
sketch4.addConstraint(Sketcher.Constraint("Coincident", 14, 3, -1, 1))
sketch4.addConstraint(Sketcher.Constraint("Coincident", 16, 3, -1, 1))
sketch4.addConstraint(Sketcher.Constraint("Coincident", 18, 3, -1, 1))
sketch4.addConstraint(Sketcher.Constraint("Coincident", 20, 3, -1, 1))
sketch4.addConstraint(Sketcher.Constraint("Coincident", 22, 3, -1, 1))
sketch4.addConstraint(Sketcher.Constraint("Equal", 0, 4))
sketch4.addConstraint(Sketcher.Constraint("Equal", 3, 5))
sketch4.addConstraint(Sketcher.Constraint("Equal", 4, 8))
sketch4.addConstraint(Sketcher.Constraint("Equal", 7, 9))
sketch4.addConstraint(Sketcher.Constraint("Equal", 8, 12))
sketch4.addConstraint(Sketcher.Constraint("Equal", 11, 13))
sketch4.addConstraint(Sketcher.Constraint("Equal", 12, 16))
sketch4.addConstraint(Sketcher.Constraint("Equal", 15, 17))
sketch4.addConstraint(Sketcher.Constraint("Equal", 16, 20))
sketch4.addConstraint(Sketcher.Constraint("Equal", 19, 21))
sketch4.addConstraint(Sketcher.Constraint("Horizontal", 7, 3, 9, 3))
sketch4.addConstraint(Sketcher.Constraint("Horizontal", 5, 3, 11, 3))
sketch4.addConstraint(Sketcher.Constraint("Horizontal", 3, 3, 13, 3))
sketch4.addConstraint(Sketcher.Constraint("Horizontal", 1, 3, 15, 3))
sketch4.addConstraint(Sketcher.Constraint("Horizontal", 19, 3, 21, 3))
sketch4.addConstraint(Sketcher.Constraint("Horizontal", 17, 3, 23, 3))
sketch4.addConstraint(Sketcher.Constraint("Vertical", 1, 3, 3, 3))
sketch4.addConstraint(Sketcher.Constraint("Vertical", 11, 3, 17, 3))
sketch4.addConstraint(Sketcher.Constraint("Vertical", 9, 3, 19, 3))
sketch4.addConstraint(Sketcher.Constraint("Radius", 0, Q("78 mm")))
sketch4.addConstraint(Sketcher.Constraint("Radius", 1, Q("5 mm")))
sketch4.addConstraint(Sketcher.Constraint("DistanceY", 5, 3, 0, 1, Q("54.787999 mm")))
sketch4.addConstraint(Sketcher.Constraint("DistanceX", 3, 3, 4, 1, Q("9.995999 mm")))
sketch4.addConstraint(Sketcher.Constraint("DistanceY", 1, 1, 20, 1, Q("52.829799 mm")))
pocket3 = doc.addObject("PartDesign::Pocket", "Pocket002")
body.addObject(pocket3)
pocket3.Profile = sketch4
pocket3.Length = 7
pocket3.Reversed = True

doc.recompute()
